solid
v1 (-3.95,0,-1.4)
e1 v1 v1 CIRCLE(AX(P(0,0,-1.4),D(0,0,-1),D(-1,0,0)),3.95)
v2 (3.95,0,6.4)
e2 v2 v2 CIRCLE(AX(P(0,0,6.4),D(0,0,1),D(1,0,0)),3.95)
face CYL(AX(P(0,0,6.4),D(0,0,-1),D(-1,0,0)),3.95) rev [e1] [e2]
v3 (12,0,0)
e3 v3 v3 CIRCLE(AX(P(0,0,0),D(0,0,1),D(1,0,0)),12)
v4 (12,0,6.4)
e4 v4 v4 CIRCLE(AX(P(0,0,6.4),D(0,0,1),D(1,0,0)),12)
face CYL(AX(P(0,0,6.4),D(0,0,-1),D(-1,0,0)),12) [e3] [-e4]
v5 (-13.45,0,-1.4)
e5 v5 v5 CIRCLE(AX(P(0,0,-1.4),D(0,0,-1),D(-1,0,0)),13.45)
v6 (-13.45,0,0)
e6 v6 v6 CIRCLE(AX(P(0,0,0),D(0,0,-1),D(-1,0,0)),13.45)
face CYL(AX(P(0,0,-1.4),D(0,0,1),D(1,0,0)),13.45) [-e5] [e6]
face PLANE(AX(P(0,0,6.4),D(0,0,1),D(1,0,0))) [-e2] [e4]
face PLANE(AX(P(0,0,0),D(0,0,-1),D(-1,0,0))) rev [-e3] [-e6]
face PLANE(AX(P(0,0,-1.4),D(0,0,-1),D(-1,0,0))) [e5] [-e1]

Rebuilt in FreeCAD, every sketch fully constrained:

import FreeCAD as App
import Part
import Sketcher

V = App.Vector

doc = App.newDocument("Part")
body = doc.addObject("PartDesign::Body", "Body")

# Sketch on XY plane
sketch1 = doc.addObject("Sketcher::SketchObject", "Sketch")
body.addObject(sketch1)
sketch1.AttachmentSupport = (doc.XY_Plane, [""])
sketch1.MapMode = "FlatFace"
sketch1.addGeometry(Part.Circle(V(0, 0, 0), V(0, 0, 1), 12), False)
sketch1.addGeometry(Part.Circle(V(0, 0, 0), V(0, 0, 1), 4), False)
sketch1.addConstraint(Sketcher.Constraint("Coincident", 0, 3, -1, 1))
sketch1.addConstraint(Sketcher.Constraint("Coincident", 1, 3, -1, 1))
sketch1.addConstraint(Sketcher.Constraint("Diameter", 0, 24.0))
sketch1.addConstraint(Sketcher.Constraint("Diameter", 1, 7.9))
pad1 = doc.addObject("PartDesign::Pad", "Pad")
body.addObject(pad1)
pad1.Profile = sketch1
pad1.Length = 6.4

# Sketch on XY plane
sketch2 = doc.addObject("Sketcher::SketchObject", "Sketch001")
body.addObject(sketch2)
sketch2.AttachmentSupport = (doc.XY_Plane, [""])
sketch2.MapMode = "FlatFace"
sketch2.addGeometry(Part.Circle(V(0, 0, 0), V(0, 0, 1), 13.4), False)
sketch2.addGeometry(Part.Circle(V(0, 0, 0), V(0, 0, 1), 4), False)
sketch2.addConstraint(Sketcher.Constraint("Coincident", 0, 3, -1, 1))
sketch2.addConstraint(Sketcher.Constraint("Coincident", 1, 3, -1, 1))
sketch2.addConstraint(Sketcher.Constraint("Diameter", 0, 26.9))
sketch2.addConstraint(Sketcher.Constraint("Diameter", 1, 7.9))
pad2 = doc.addObject("PartDesign::Pad", "Pad001")
body.addObject(pad2)
pad2.Profile = sketch2
pad2.Length = 1.4
pad2.Reversed = True

doc.recompute()
